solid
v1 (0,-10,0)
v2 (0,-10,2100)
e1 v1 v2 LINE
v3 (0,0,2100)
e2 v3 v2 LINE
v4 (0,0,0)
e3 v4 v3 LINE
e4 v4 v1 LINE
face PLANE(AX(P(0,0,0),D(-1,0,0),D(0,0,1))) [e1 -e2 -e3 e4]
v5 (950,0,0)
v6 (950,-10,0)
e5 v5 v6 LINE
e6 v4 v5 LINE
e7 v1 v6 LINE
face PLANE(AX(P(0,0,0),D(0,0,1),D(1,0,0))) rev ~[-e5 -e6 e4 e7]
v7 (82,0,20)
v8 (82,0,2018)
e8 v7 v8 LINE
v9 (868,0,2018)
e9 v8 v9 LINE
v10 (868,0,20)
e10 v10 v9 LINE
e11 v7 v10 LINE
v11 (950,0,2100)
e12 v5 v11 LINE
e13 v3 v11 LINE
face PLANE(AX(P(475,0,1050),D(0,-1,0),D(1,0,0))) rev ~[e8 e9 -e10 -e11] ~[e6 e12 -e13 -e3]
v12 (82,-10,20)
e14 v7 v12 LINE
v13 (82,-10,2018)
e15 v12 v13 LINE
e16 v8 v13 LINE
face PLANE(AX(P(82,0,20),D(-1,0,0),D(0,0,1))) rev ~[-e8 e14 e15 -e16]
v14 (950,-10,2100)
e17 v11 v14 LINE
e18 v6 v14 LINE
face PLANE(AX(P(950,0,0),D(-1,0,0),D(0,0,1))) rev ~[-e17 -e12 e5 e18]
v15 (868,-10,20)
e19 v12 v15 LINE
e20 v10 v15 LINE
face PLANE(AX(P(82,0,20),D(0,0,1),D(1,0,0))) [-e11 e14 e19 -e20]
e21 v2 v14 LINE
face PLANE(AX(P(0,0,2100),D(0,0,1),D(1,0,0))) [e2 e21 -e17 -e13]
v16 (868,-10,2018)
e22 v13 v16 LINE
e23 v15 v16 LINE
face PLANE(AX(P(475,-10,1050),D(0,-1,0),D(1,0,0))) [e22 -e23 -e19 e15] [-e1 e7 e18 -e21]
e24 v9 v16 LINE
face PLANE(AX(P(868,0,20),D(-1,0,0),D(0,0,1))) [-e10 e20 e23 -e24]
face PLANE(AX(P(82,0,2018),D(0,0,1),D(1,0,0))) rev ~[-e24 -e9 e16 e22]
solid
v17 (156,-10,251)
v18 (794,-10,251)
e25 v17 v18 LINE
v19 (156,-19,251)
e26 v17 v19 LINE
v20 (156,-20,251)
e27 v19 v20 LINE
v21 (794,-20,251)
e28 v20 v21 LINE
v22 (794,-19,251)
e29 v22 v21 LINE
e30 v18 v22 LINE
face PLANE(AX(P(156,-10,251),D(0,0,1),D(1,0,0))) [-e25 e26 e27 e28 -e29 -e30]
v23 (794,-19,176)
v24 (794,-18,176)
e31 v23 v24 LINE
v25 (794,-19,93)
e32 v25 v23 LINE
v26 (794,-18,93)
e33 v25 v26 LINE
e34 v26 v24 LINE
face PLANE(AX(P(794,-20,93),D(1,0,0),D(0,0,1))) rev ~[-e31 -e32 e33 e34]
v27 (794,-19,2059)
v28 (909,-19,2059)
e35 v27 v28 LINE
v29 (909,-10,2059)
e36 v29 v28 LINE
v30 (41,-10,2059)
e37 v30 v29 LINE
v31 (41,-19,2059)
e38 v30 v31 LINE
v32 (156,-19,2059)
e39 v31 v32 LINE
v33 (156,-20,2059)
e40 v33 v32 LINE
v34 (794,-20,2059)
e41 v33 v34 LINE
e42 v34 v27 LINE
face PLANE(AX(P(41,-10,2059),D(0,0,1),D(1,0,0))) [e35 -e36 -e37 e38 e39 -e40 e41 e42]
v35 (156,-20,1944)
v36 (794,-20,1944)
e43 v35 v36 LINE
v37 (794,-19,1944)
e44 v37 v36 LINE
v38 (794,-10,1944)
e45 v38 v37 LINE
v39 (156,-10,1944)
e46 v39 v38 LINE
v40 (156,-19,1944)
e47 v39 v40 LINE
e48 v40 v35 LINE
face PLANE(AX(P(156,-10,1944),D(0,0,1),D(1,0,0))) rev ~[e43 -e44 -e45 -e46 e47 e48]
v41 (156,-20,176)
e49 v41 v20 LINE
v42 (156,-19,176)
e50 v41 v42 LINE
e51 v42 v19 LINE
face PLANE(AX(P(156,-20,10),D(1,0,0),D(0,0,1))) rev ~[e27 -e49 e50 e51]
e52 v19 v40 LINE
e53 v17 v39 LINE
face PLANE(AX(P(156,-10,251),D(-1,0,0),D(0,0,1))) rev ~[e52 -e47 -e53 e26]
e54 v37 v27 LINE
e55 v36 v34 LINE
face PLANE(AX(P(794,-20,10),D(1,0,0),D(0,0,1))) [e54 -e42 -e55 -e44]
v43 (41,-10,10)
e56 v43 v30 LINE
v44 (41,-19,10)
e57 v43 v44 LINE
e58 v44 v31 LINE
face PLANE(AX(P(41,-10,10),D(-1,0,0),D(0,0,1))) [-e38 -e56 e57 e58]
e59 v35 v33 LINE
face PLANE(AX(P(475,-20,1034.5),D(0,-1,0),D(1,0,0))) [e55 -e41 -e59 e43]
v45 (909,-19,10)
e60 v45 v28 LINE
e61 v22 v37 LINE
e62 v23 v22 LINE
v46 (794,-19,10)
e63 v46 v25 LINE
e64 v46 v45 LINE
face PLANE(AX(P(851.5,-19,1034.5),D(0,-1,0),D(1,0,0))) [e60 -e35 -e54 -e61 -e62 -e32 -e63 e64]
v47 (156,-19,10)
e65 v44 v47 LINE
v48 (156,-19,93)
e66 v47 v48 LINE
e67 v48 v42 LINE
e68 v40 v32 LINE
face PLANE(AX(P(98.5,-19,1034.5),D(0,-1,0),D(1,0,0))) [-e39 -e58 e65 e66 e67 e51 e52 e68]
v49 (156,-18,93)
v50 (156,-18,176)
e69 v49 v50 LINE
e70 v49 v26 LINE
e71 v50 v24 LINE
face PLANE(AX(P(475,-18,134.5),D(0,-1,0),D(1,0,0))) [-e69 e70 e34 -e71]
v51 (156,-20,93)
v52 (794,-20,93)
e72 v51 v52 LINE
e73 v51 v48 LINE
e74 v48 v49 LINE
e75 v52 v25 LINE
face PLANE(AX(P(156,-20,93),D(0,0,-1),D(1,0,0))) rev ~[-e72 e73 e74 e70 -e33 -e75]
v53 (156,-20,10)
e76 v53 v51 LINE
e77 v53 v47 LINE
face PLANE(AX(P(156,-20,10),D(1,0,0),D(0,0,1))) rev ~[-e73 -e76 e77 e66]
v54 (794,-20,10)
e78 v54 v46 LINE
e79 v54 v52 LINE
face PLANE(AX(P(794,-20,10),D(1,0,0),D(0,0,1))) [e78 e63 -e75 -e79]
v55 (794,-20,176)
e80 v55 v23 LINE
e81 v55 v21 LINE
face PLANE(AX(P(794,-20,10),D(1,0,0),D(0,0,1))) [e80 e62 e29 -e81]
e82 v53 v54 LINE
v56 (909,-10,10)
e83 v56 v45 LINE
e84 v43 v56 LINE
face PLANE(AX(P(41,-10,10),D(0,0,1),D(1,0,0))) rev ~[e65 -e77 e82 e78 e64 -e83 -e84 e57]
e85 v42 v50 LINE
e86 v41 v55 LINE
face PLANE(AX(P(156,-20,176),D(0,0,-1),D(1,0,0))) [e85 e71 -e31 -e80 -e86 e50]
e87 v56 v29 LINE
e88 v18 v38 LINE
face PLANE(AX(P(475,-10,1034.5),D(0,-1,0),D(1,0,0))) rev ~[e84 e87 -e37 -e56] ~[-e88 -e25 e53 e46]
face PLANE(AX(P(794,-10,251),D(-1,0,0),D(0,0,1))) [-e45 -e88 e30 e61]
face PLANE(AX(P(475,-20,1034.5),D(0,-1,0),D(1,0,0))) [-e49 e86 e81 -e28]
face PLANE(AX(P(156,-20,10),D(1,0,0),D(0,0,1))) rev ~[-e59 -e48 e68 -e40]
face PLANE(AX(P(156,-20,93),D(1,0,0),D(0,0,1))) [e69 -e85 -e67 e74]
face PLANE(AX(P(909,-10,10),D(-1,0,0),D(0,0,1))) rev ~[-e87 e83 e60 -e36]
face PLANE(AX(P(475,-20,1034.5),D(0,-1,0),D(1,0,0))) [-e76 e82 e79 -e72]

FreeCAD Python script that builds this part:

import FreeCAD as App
import Part
import Sketcher
Q = App.Units.Quantity

doc = App.newDocument("Part")
body = doc.addObject("PartDesign::Body", "Body")

# Sketch on XZ plane
sketch1 = doc.addObject("Sketcher::SketchObject", "Sketch")
body.addObject(sketch1)
sketch1.AttachmentSupport = (doc.XZ_Plane, [""])
sketch1.MapMode = "FlatFace"
sketch1.addGeometry([
    Part.LineSegment(App.Vector(0, 2100, 0), App.Vector(0, 0, 0)),  # 0
    Part.LineSegment(App.Vector(0, 0, 0), App.Vector(950, 0, 0)),  # 1
    Part.LineSegment(App.Vector(950, 0, 0), App.Vector(950, 2100, 0)),  # 2
    Part.LineSegment(App.Vector(950, 2100, 0), App.Vector(0, 2100, 0)),  # 3
    Part.LineSegment(App.Vector(868, 20, 0), App.Vector(82, 20, 0)),  # 4
    Part.LineSegment(App.Vector(82, 20, 0), App.Vector(82, 2018, 0)),  # 5
    Part.LineSegment(App.Vector(82, 2018, 0), App.Vector(868, 2018, 0)),  # 6
    Part.LineSegment(App.Vector(868, 2018, 0), App.Vector(868, 20, 0)),  # 7
], False)
sketch1.addConstraint([
    Sketcher.Constraint("Coincident", 0, 2, 1, 1),
    Sketcher.Constraint("Coincident", 1, 2, 2, 1),
    Sketcher.Constraint("Coincident", 2, 2, 3, 1),
    Sketcher.Constraint("Coincident", 3, 2, 0, 1),
    Sketcher.Constraint("Coincident", 4, 2, 5, 1),
    Sketcher.Constraint("Coincident", 5, 2, 6, 1),
    Sketcher.Constraint("Coincident", 6, 2, 7, 1),
    Sketcher.Constraint("Coincident", 7, 2, 4, 1),
    Sketcher.Constraint("Vertical", 0),
    Sketcher.Constraint("Horizontal", 1),
    Sketcher.Constraint("Vertical", 2),
    Sketcher.Constraint("Horizontal", 3),
    Sketcher.Constraint("Horizontal", 4),
    Sketcher.Constraint("Vertical", 5),
    Sketcher.Constraint("Horizontal", 6),
    Sketcher.Constraint("Vertical", 7),
    Sketcher.Constraint("Coincident", 0, 2, -1, 1),
    Sketcher.Constraint("DistanceX", 1, 1, 1, 2, Q("950 mm")),
    Sketcher.Constraint("DistanceX", 4, 2, 4, 1, Q("786 mm")),
    Sketcher.Constraint("DistanceY", 0, 2, 0, 1, Q("2100 mm")),
    Sketcher.Constraint("DistanceY", 5, 1, 5, 2, Q("1998 mm")),
    Sketcher.Constraint("DistanceX", -1, 1, 4, 2, Q("82 mm")),
    Sketcher.Constraint("DistanceY", -1, 1, 4, 2, Q("20 mm")),
])
pad1 = doc.addObject("PartDesign::Pad", "Pad")
body.addObject(pad1)
pad1.Profile = sketch1
pad1.Length = 10
body2 = doc.addObject("PartDesign::Body", "Body001")

# Sketch on XZ plane
sketch2 = doc.addObject("Sketcher::SketchObject", "Sketch001")
body2.addObject(sketch2)
sketch2.AttachmentSupport = (doc.getObject("XZ_Plane001"), [""])
sketch2.MapMode = "FlatFace"
sketch2.AttachmentOffset = App.Placement(App.Vector(0, 0, 10), App.Rotation())
sketch2.addGeometry([
    Part.LineSegment(App.Vector(41, 2059, 0), App.Vector(41, 10, 0)),  # 0
    Part.LineSegment(App.Vector(41, 10, 0), App.Vector(909, 10, 0)),  # 1
    Part.LineSegment(App.Vector(909, 10, 0), App.Vector(909, 2059, 0)),  # 2
    Part.LineSegment(App.Vector(909, 2059, 0), App.Vector(41, 2059, 0)),  # 3
    Part.LineSegment(App.Vector(794, 251, 0), App.Vector(156, 251, 0)),  # 4
    Part.LineSegment(App.Vector(156, 251, 0), App.Vector(156, 1944, 0)),  # 5
    Part.LineSegment(App.Vector(156, 1944, 0), App.Vector(794, 1944, 0)),  # 6
    Part.LineSegment(App.Vector(794, 1944, 0), App.Vector(794, 251, 0)),  # 7
], False)
sketch2.addConstraint([
    Sketcher.Constraint("Coincident", 0, 2, 1, 1),
    Sketcher.Constraint("Coincident", 1, 2, 2, 1),
    Sketcher.Constraint("Coincident", 2, 2, 3, 1),
    Sketcher.Constraint("Coincident", 3, 2, 0, 1),
    Sketcher.Constraint("Coincident", 4, 2, 5, 1),
    Sketcher.Constraint("Coincident", 5, 2, 6, 1),
    Sketcher.Constraint("Coincident", 6, 2, 7, 1),
    Sketcher.Constraint("Coincident", 7, 2, 4, 1),
    Sketcher.Constraint("Vertical", 0),
    Sketcher.Constraint("Horizontal", 1),
    Sketcher.Constraint("Vertical", 2),
    Sketcher.Constraint("Horizontal", 3),
    Sketcher.Constraint("Horizontal", 4),
    Sketcher.Constraint("Vertical", 5),
    Sketcher.Constraint("Horizontal", 6),
    Sketcher.Constraint("Vertical", 7),
    Sketcher.Constraint("DistanceX", 1, 1, 1, 2, Q("868 mm")),
    Sketcher.Constraint("DistanceX", 4, 2, 4, 1, Q("638 mm")),
    Sketcher.Constraint("DistanceY", 0, 2, 0, 1, Q("2049 mm")),
    Sketcher.Constraint("DistanceY", 5, 1, 5, 2, Q("1693 mm")),
    Sketcher.Constraint("DistanceX", -1, 1, 0, 2, Q("41 mm")),
    Sketcher.Constraint("DistanceY", -1, 1, 0, 2, Q("10 mm")),
    Sketcher.Constraint("DistanceX", -1, 1, 4, 2, Q("156 mm")),
    Sketcher.Constraint("DistanceY", -1, 1, 4, 2, Q("251 mm")),
])
pad2 = doc.addObject("PartDesign::Pad", "Pad001")
body2.addObject(pad2)
pad2.Profile = sketch2
pad2.Length = 10

# Sketch on XZ plane
sketch3 = doc.addObject("Sketcher::SketchObject", "Sketch002")
body2.addObject(sketch3)
sketch3.AttachmentSupport = (doc.getObject("XZ_Plane001"), [""])
sketch3.MapMode = "FlatFace"
sketch3.AttachmentOffset = App.Placement(App.Vector(0, 0, 20), App.Rotation())
sketch3.addGeometry([
    Part.LineSegment(App.Vector(41, 2059, 0), App.Vector(41, 10, 0)),  # 0
    Part.LineSegment(App.Vector(41, 10, 0), App.Vector(156, 10, 0)),  # 1
    Part.LineSegment(App.Vector(156, 10, 0), App.Vector(156, 2059, 0)),  # 2
    Part.LineSegment(App.Vector(156, 2059, 0), App.Vector(41, 2059, 0)),  # 3
    Part.LineSegment(App.Vector(794, 2059, 0), App.Vector(794, 10, 0)),  # 4
    Part.LineSegment(App.Vector(794, 10, 0), App.Vector(909, 10, 0)),  # 5
    Part.LineSegment(App.Vector(909, 10, 0), App.Vector(909, 2059, 0)),  # 6
    Part.LineSegment(App.Vector(909, 2059, 0), App.Vector(794, 2059, 0)),  # 7
], False)
sketch3.addConstraint([
    Sketcher.Constraint("Coincident", 0, 2, 1, 1),
    Sketcher.Constraint("Coincident", 1, 2, 2, 1),
    Sketcher.Constraint("Coincident", 2, 2, 3, 1),
    Sketcher.Constraint("Coincident", 3, 2, 0, 1),
    Sketcher.Constraint("Coincident", 4, 2, 5, 1),
    Sketcher.Constraint("Coincident", 5, 2, 6, 1),
    Sketcher.Constraint("Coincident", 6, 2, 7, 1),
    Sketcher.Constraint("Coincident", 7, 2, 4, 1),
    Sketcher.Constraint("Vertical", 0),
    Sketcher.Constraint("Horizontal", 1),
    Sketcher.Constraint("Vertical", 2),
    Sketcher.Constraint("Horizontal", 3),
    Sketcher.Constraint("Vertical", 4),
    Sketcher.Constraint("Horizontal", 5),
    Sketcher.Constraint("Vertical", 6),
    Sketcher.Constraint("Horizontal", 7),
    Sketcher.Constraint("Horizontal", 1, 2, 4, 2),
    Sketcher.Constraint("Horizontal", 3, 2, 6, 2),
    Sketcher.Constraint("Equal", 3, 5),
    Sketcher.Constraint("DistanceX", 1, 1, 1, 2, Q("115 mm")),
    Sketcher.Constraint("DistanceY", 0, 2, 0, 1, Q("2049 mm")),
    Sketcher.Constraint("DistanceX", -1, 1, 0, 2, Q("41 mm")),
    Sketcher.Constraint("DistanceY", -1, 1, 0, 2, Q("10 mm")),
    Sketcher.Constraint("DistanceX", -1, 1, 4, 2, Q("794 mm")),
])
pocket1 = doc.addObject("PartDesign::Pocket", "Pocket")
body2.addObject(pocket1)
pocket1.Profile = sketch3
pocket1.Length = 1

# Sketch on XZ plane
sketch4 = doc.addObject("Sketcher::SketchObject", "Sketch003")
body2.addObject(sketch4)
sketch4.AttachmentSupport = (doc.getObject("XZ_Plane001"), [""])
sketch4.MapMode = "FlatFace"
sketch4.AttachmentOffset = App.Placement(App.Vector(0, 0, 20), App.Rotation())
sketch4.addGeometry([
    Part.LineSegment(App.Vector(156, 176, 0), App.Vector(156, 93, 0)),
    Part.LineSegment(App.Vector(156, 93, 0), App.Vector(794, 93, 0)),
    Part.LineSegment(App.Vector(794, 93, 0), App.Vector(794, 176, 0)),
    Part.LineSegment(App.Vector(794, 176, 0), App.Vector(156, 176, 0)),
], False)
sketch4.addConstraint([
    Sketcher.Constraint("Coincident", 0, 2, 1, 1),
    Sketcher.Constraint("Coincident", 1, 2, 2, 1),
    Sketcher.Constraint("Coincident", 2, 2, 3, 1),
    Sketcher.Constraint("Coincident", 3, 2, 0, 1),
    Sketcher.Constraint("Vertical", 0),
    Sketcher.Constraint("Horizontal", 1),
    Sketcher.Constraint("Vertical", 2),
    Sketcher.Constraint("Horizontal", 3),
    Sketcher.Constraint("DistanceX", 1, 1, 1, 2, Q("638 mm")),
    Sketcher.Constraint("DistanceY", 0, 2, 0, 1, Q("83 mm")),
    Sketcher.Constraint("DistanceX", -1, 1, 0, 2, Q("156 mm")),
    Sketcher.Constraint("DistanceY", -1, 1, 0, 2, Q("93 mm")),
])
pocket2 = doc.addObject("PartDesign::Pocket", "Pocket001")
body2.addObject(pocket2)
pocket2.Profile = sketch4
pocket2.Length = 2

doc.recompute()
